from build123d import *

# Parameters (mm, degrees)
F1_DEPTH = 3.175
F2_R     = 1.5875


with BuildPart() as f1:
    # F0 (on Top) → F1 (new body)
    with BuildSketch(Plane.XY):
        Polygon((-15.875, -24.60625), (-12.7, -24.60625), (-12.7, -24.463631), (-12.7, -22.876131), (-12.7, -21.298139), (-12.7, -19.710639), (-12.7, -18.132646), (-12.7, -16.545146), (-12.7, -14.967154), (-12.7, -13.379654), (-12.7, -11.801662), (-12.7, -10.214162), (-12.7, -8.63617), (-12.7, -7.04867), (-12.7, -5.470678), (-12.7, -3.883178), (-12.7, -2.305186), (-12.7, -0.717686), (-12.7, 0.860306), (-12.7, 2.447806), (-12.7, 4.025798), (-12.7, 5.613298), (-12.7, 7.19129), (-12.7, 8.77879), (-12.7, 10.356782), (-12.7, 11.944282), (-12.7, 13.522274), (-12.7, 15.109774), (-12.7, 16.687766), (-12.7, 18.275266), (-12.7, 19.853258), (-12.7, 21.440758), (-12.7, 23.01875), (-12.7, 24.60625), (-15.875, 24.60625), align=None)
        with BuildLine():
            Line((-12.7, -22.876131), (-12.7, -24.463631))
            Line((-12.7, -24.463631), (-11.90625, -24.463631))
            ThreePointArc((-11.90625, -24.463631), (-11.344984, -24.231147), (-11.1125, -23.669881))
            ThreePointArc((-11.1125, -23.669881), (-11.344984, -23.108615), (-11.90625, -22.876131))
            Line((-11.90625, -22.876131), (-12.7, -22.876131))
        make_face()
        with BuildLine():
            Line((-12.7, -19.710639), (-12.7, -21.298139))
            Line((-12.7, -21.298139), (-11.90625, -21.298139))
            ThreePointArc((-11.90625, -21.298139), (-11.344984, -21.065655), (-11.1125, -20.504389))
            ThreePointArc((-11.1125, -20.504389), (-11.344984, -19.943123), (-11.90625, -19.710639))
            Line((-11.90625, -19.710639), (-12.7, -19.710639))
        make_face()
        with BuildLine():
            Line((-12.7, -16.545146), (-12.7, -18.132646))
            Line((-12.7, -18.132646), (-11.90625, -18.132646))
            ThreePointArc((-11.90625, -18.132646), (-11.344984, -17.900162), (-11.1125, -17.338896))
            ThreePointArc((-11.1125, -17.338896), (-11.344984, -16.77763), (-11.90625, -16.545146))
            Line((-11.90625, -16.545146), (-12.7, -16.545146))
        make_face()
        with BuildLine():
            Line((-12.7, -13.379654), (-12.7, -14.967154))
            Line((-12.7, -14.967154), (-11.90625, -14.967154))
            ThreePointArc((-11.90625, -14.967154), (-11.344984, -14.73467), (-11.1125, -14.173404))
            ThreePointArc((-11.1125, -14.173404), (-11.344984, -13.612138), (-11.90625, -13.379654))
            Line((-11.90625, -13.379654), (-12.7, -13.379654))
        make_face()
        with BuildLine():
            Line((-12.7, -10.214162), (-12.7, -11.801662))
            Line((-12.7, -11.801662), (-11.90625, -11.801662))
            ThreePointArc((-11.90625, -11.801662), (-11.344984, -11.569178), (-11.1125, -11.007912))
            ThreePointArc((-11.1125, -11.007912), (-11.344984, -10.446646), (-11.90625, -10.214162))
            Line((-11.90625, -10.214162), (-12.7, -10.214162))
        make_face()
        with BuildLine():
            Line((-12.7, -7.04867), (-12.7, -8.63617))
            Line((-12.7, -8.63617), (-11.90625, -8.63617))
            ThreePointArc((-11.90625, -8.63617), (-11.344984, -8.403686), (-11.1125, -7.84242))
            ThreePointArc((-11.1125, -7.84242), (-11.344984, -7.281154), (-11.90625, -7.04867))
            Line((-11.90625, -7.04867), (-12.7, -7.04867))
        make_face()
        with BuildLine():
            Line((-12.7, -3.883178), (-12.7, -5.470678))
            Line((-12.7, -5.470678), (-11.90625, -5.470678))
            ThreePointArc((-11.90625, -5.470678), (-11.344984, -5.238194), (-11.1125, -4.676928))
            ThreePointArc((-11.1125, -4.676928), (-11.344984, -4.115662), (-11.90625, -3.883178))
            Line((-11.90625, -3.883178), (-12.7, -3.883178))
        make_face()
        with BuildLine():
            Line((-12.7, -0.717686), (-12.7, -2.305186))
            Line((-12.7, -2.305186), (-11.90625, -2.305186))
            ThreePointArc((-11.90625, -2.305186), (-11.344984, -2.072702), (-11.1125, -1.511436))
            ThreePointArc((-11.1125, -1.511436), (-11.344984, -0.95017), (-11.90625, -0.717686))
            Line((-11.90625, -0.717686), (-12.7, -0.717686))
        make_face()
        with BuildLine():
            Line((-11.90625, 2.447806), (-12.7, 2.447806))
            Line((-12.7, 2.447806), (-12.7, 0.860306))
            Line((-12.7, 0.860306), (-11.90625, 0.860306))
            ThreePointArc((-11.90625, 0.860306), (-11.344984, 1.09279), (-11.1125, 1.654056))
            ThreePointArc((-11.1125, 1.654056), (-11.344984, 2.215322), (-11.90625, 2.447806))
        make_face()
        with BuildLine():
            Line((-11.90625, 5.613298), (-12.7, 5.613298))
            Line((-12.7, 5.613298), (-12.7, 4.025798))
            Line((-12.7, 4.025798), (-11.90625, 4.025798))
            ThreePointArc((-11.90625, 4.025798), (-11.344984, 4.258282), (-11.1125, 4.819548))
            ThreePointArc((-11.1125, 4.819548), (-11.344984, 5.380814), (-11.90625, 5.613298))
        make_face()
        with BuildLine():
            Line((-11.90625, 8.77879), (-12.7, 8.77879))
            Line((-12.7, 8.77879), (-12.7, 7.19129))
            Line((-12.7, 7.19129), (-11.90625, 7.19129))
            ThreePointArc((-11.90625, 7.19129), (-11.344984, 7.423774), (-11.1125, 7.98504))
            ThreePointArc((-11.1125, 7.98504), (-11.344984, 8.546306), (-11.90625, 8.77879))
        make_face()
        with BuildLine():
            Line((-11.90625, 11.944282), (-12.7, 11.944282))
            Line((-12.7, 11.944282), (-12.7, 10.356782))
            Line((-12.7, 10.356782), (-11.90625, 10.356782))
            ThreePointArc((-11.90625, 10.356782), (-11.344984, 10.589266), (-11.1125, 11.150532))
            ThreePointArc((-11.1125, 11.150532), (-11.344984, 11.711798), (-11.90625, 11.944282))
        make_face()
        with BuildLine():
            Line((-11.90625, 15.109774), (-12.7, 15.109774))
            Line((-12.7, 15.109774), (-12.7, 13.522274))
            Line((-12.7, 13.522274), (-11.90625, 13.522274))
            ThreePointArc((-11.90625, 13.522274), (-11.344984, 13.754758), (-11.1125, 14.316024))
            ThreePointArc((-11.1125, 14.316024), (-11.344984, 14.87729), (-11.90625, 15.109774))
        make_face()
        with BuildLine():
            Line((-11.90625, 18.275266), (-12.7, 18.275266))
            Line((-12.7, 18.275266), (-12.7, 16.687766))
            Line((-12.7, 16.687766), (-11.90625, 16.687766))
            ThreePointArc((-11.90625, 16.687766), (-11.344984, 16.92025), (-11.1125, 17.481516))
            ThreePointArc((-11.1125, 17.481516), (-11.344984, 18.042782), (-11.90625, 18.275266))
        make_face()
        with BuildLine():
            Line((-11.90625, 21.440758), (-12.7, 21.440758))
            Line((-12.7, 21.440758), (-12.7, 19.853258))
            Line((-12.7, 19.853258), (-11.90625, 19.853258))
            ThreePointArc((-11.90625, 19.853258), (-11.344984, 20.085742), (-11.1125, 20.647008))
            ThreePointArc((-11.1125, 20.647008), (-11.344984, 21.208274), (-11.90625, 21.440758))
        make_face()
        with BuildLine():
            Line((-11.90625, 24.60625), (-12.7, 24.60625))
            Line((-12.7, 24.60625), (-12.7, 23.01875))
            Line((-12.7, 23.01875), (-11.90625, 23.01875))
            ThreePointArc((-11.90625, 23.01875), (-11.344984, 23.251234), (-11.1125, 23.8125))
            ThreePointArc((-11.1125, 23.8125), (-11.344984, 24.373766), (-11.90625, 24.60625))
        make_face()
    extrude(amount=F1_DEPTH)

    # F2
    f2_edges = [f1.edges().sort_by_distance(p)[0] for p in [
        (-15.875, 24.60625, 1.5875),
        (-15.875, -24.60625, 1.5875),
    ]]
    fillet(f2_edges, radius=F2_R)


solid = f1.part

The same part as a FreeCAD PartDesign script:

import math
import FreeCAD as App
import Part
import Sketcher
from FreeCAD import Vector
Q = App.Units.Quantity


def edges_at(feature, points):
    """Names of the edges that pass closest to the given points."""
    edges = feature.Shape.Edges
    near = lambda p: min(range(len(edges)), key=lambda i: edges[i].distToShape(Part.Vertex(*p))[0])
    return sorted({f"Edge{near(p) + 1}" for p in points})

doc = App.newDocument("Part")
body = doc.addObject("PartDesign::Body", "Body")

sketch1 = body.newObject("Sketcher::SketchObject", "Sketch")
sketch1.AttachmentSupport = (doc.getObject("XY_Plane"), [""])
sketch1.MapMode = "FlatFace"
sketch1.addGeometry(Part.LineSegment(Vector(-15.88, -24.61, 0), Vector(-12.7, -24.61, 0)), False)
sketch1.addGeometry(Part.LineSegment(Vector(-12.7, -24.61, 0), Vector(-12.7, -24.46, 0)), False)
sketch1.addGeometry(Part.LineSegment(Vector(-12.7, -24.46, 0), Vector(-11.91, -24.46, 0)), False)
sketch1.addGeometry(Part.ArcOfCircle(Part.Circle(Vector(-11.91, -23.67, 0), Vector(0, 0, 1), 0.79), math.radians(-90), math.radians(0)), False)
sketch1.addGeometry(Part.ArcOfCircle(Part.Circle(Vector(-11.91, -23.67, 0), Vector(0, 0, 1), 0.79), math.radians(0), math.radians(90)), False)
sketch1.addGeometry(Part.LineSegment(Vector(-11.91, -22.88, 0), Vector(-12.7, -22.88, 0)), False)
sketch1.addGeometry(Part.LineSegment(Vector(-12.7, -22.88, 0), Vector(-12.7, -21.3, 0)), False)
sketch1.addGeometry(Part.LineSegment(Vector(-12.7, -21.3, 0), Vector(-11.91, -21.3, 0)), False)
sketch1.addGeometry(Part.ArcOfCircle(Part.Circle(Vector(-11.91, -20.5, 0), Vector(0, 0, 1), 0.79), math.radians(-90), math.radians(0)), False)
sketch1.addGeometry(Part.ArcOfCircle(Part.Circle(Vector(-11.91, -20.5, 0), Vector(0, 0, 1), 0.79), math.radians(0), math.radians(90)), False)
sketch1.addGeometry(Part.LineSegment(Vector(-11.91, -19.71, 0), Vector(-12.7, -19.71, 0)), False)
sketch1.addGeometry(Part.LineSegment(Vector(-12.7, -19.71, 0), Vector(-12.7, -18.13, 0)), False)
sketch1.addGeometry(Part.LineSegment(Vector(-12.7, -18.13, 0), Vector(-11.91, -18.13, 0)), False)
sketch1.addGeometry(Part.ArcOfCircle(Part.Circle(Vector(-11.91, -17.34, 0), Vector(0, 0, 1), 0.79), math.radians(-90), math.radians(0)), False)
sketch1.addGeometry(Part.ArcOfCircle(Part.Circle(Vector(-11.91, -17.34, 0), Vector(0, 0, 1), 0.79), math.radians(0), math.radians(90)), False)
sketch1.addGeometry(Part.LineSegment(Vector(-11.91, -16.55, 0), Vector(-12.7, -16.55, 0)), False)
sketch1.addGeometry(Part.LineSegment(Vector(-12.7, -16.55, 0), Vector(-12.7, -14.97, 0)), False)
sketch1.addGeometry(Part.LineSegment(Vector(-12.7, -14.97, 0), Vector(-11.91, -14.97, 0)), False)
sketch1.addGeometry(Part.ArcOfCircle(Part.Circle(Vector(-11.91, -14.17, 0), Vector(0, 0, 1), 0.79), math.radians(-90), math.radians(0)), False)
sketch1.addGeometry(Part.ArcOfCircle(Part.Circle(Vector(-11.91, -14.17, 0), Vector(0, 0, 1), 0.79), math.radians(0), math.radians(90)), False)
sketch1.addGeometry(Part.LineSegment(Vector(-11.91, -13.38, 0), Vector(-12.7, -13.38, 0)), False)
sketch1.addGeometry(Part.LineSegment(Vector(-12.7, -13.38, 0), Vector(-12.7, -11.8, 0)), False)
sketch1.addGeometry(Part.LineSegment(Vector(-12.7, -11.8, 0), Vector(-11.91, -11.8, 0)), False)
sketch1.addGeometry(Part.ArcOfCircle(Part.Circle(Vector(-11.91, -11.01, 0), Vector(0, 0, 1), 0.79), math.radians(-90), math.radians(0)), False)
sketch1.addGeometry(Part.ArcOfCircle(Part.Circle(Vector(-11.91, -11.01, 0), Vector(0, 0, 1), 0.79), math.radians(0), math.radians(90)), False)
sketch1.addGeometry(Part.LineSegment(Vector(-11.91, -10.21, 0), Vector(-12.7, -10.21, 0)), False)
sketch1.addGeometry(Part.LineSegment(Vector(-12.7, -10.21, 0), Vector(-12.7, -8.64, 0)), False)
sketch1.addGeometry(Part.LineSegment(Vector(-12.7, -8.64, 0), Vector(-11.91, -8.64, 0)), False)
sketch1.addGeometry(Part.ArcOfCircle(Part.Circle(Vector(-11.91, -7.84, 0), Vector(0, 0, 1), 0.79), math.radians(-90), math.radians(0)), False)
sketch1.addGeometry(Part.ArcOfCircle(Part.Circle(Vector(-11.91, -7.84, 0), Vector(0, 0, 1), 0.79), math.radians(0), math.radians(90)), False)
sketch1.addGeometry(Part.LineSegment(Vector(-11.91, -7.05, 0), Vector(-12.7, -7.05, 0)), False)
sketch1.addGeometry(Part.LineSegment(Vector(-12.7, -7.05, 0), Vector(-12.7, -5.47, 0)), False)
sketch1.addGeometry(Part.LineSegment(Vector(-12.7, -5.47, 0), Vector(-11.91, -5.47, 0)), False)
sketch1.addGeometry(Part.ArcOfCircle(Part.Circle(Vector(-11.91, -4.68, 0), Vector(0, 0, 1), 0.79), math.radians(-90), math.radians(0)), False)
sketch1.addGeometry(Part.ArcOfCircle(Part.Circle(Vector(-11.91, -4.68, 0), Vector(0, 0, 1), 0.79), math.radians(0), math.radians(90)), False)
sketch1.addGeometry(Part.LineSegment(Vector(-11.91, -3.88, 0), Vector(-12.7, -3.88, 0)), False)
sketch1.addGeometry(Part.LineSegment(Vector(-12.7, -3.88, 0), Vector(-12.7, -2.31, 0)), False)
sketch1.addGeometry(Part.LineSegment(Vector(-12.7, -2.31, 0), Vector(-11.91, -2.31, 0)), False)
sketch1.addGeometry(Part.ArcOfCircle(Part.Circle(Vector(-11.91, -1.51, 0), Vector(0, 0, 1), 0.79), math.radians(-90), math.radians(0)), False)
sketch1.addGeometry(Part.ArcOfCircle(Part.Circle(Vector(-11.91, -1.51, 0), Vector(0, 0, 1), 0.79), math.radians(0), math.radians(90)), False)
sketch1.addGeometry(Part.LineSegment(Vector(-11.91, -0.72, 0), Vector(-12.7, -0.72, 0)), False)
sketch1.addGeometry(Part.LineSegment(Vector(-12.7, -0.72, 0), Vector(-12.7, 0.86, 0)), False)
sketch1.addGeometry(Part.LineSegment(Vector(-12.7, 0.86, 0), Vector(-11.91, 0.86, 0)), False)
sketch1.addGeometry(Part.ArcOfCircle(Part.Circle(Vector(-11.91, 1.65, 0), Vector(0, 0, 1), 0.79), math.radians(-90), math.radians(0)), False)
sketch1.addGeometry(Part.ArcOfCircle(Part.Circle(Vector(-11.91, 1.65, 0), Vector(0, 0, 1), 0.79), math.radians(0), math.radians(90)), False)
sketch1.addGeometry(Part.LineSegment(Vector(-11.91, 2.45, 0), Vector(-12.7, 2.45, 0)), False)
sketch1.addGeometry(Part.LineSegment(Vector(-12.7, 2.45, 0), Vector(-12.7, 4.03, 0)), False)
sketch1.addGeometry(Part.LineSegment(Vector(-12.7, 4.03, 0), Vector(-11.91, 4.03, 0)), False)
sketch1.addGeometry(Part.ArcOfCircle(Part.Circle(Vector(-11.91, 4.82, 0), Vector(0, 0, 1), 0.79), math.radians(-90), math.radians(0)), False)
sketch1.addGeometry(Part.ArcOfCircle(Part.Circle(Vector(-11.91, 4.82, 0), Vector(0, 0, 1), 0.79), math.radians(0), math.radians(90)), False)
sketch1.addGeometry(Part.LineSegment(Vector(-11.91, 5.61, 0), Vector(-12.7, 5.61, 0)), False)
sketch1.addGeometry(Part.LineSegment(Vector(-12.7, 5.61, 0), Vector(-12.7, 7.19, 0)), False)
sketch1.addGeometry(Part.LineSegment(Vector(-12.7, 7.19, 0), Vector(-11.91, 7.19, 0)), False)
sketch1.addGeometry(Part.ArcOfCircle(Part.Circle(Vector(-11.91, 7.99, 0), Vector(0, 0, 1), 0.79), math.radians(-90), math.radians(0)), False)
sketch1.addGeometry(Part.ArcOfCircle(Part.Circle(Vector(-11.91, 7.99, 0), Vector(0, 0, 1), 0.79), math.radians(0), math.radians(90)), False)
sketch1.addGeometry(Part.LineSegment(Vector(-11.91, 8.78, 0), Vector(-12.7, 8.78, 0)), False)
sketch1.addGeometry(Part.LineSegment(Vector(-12.7, 8.78, 0), Vector(-12.7, 10.36, 0)), False)
sketch1.addGeometry(Part.LineSegment(Vector(-12.7, 10.36, 0), Vector(-11.91, 10.36, 0)), False)
sketch1.addGeometry(Part.ArcOfCircle(Part.Circle(Vector(-11.91, 11.15, 0), Vector(0, 0, 1), 0.79), math.radians(-90), math.radians(0)), False)
sketch1.addGeometry(Part.ArcOfCircle(Part.Circle(Vector(-11.91, 11.15, 0), Vector(0, 0, 1), 0.79), math.radians(0), math.radians(90)), False)
sketch1.addGeometry(Part.LineSegment(Vector(-11.91, 11.94, 0), Vector(-12.7, 11.94, 0)), False)
sketch1.addGeometry(Part.LineSegment(Vector(-12.7, 11.94, 0), Vector(-12.7, 13.52, 0)), False)
sketch1.addGeometry(Part.LineSegment(Vector(-12.7, 13.52, 0), Vector(-11.91, 13.52, 0)), False)
sketch1.addGeometry(Part.ArcOfCircle(Part.Circle(Vector(-11.91, 14.32, 0), Vector(0, 0, 1), 0.79), math.radians(-90), math.radians(0)), False)
sketch1.addGeometry(Part.ArcOfCircle(Part.Circle(Vector(-11.91, 14.32, 0), Vector(0, 0, 1), 0.79), math.radians(0), math.radians(90)), False)
sketch1.addGeometry(Part.LineSegment(Vector(-11.91, 15.11, 0), Vector(-12.7, 15.11, 0)), False)
sketch1.addGeometry(Part.LineSegment(Vector(-12.7, 15.11, 0), Vector(-12.7, 16.69, 0)), False)
sketch1.addGeometry(Part.LineSegment(Vector(-12.7, 16.69, 0), Vector(-11.91, 16.69, 0)), False)
sketch1.addGeometry(Part.ArcOfCircle(Part.Circle(Vector(-11.91, 17.48, 0), Vector(0, 0, 1), 0.79), math.radians(-90), math.radians(0)), False)
sketch1.addGeometry(Part.ArcOfCircle(Part.Circle(Vector(-11.91, 17.48, 0), Vector(0, 0, 1), 0.79), math.radians(0), math.radians(90)), False)
sketch1.addGeometry(Part.LineSegment(Vector(-11.91, 18.28, 0), Vector(-12.7, 18.28, 0)), False)
sketch1.addGeometry(Part.LineSegment(Vector(-12.7, 18.28, 0), Vector(-12.7, 19.85, 0)), False)
sketch1.addGeometry(Part.LineSegment(Vector(-12.7, 19.85, 0), Vector(-11.91, 19.85, 0)), False)
sketch1.addGeometry(Part.ArcOfCircle(Part.Circle(Vector(-11.91, 20.65, 0), Vector(0, 0, 1), 0.79), math.radians(-90), math.radians(0)), False)
sketch1.addGeometry(Part.ArcOfCircle(Part.Circle(Vector(-11.91, 20.65, 0), Vector(0, 0, 1), 0.79), math.radians(0), math.radians(90)), False)
sketch1.addGeometry(Part.LineSegment(Vector(-11.91, 21.44, 0), Vector(-12.7, 21.44, 0)), False)
sketch1.addGeometry(Part.LineSegment(Vector(-12.7, 21.44, 0), Vector(-12.7, 23.02, 0)), False)
sketch1.addGeometry(Part.LineSegment(Vector(-12.7, 23.02, 0), Vector(-11.91, 23.02, 0)), False)
sketch1.addGeometry(Part.ArcOfCircle(Part.Circle(Vector(-11.91, 23.81, 0), Vector(0, 0, 1), 0.79), math.radians(-90), math.radians(0)), False)
sketch1.addGeometry(Part.ArcOfCircle(Part.Circle(Vector(-11.91, 23.81, 0), Vector(0, 0, 1), 0.79), math.radians(0), math.radians(90)), False)
sketch1.addGeometry(Part.LineSegment(Vector(-11.91, 24.61, 0), Vector(-15.88, 24.61, 0)), False)
sketch1.addGeometry(Part.LineSegment(Vector(-15.88, 24.61, 0), Vector(-15.88, -24.61, 0)), False)
sketch1.addConstraint(Sketcher.Constraint("Coincident", 0, 2, 1, 1))
sketch1.addConstraint(Sketcher.Constraint("Coincident", 1, 2, 2, 1))
sketch1.addConstraint(Sketcher.Constraint("Tangent", 2, 2, 3, 1))
sketch1.addConstraint(Sketcher.Constraint("Tangent", 3, 2, 4, 1))
sketch1.addConstraint(Sketcher.Constraint("Tangent", 4, 2, 5, 1))
sketch1.addConstraint(Sketcher.Constraint("Coincident", 5, 2, 6, 1))
sketch1.addConstraint(Sketcher.Constraint("Coincident", 6, 2, 7, 1))
sketch1.addConstraint(Sketcher.Constraint("Tangent", 7, 2, 8, 1))
sketch1.addConstraint(Sketcher.Constraint("Tangent", 8, 2, 9, 1))
sketch1.addConstraint(Sketcher.Constraint("Tangent", 9, 2, 10, 1))
sketch1.addConstraint(Sketcher.Constraint("Coincident", 10, 2, 11, 1))
sketch1.addConstraint(Sketcher.Constraint("Coincident", 11, 2, 12, 1))
sketch1.addConstraint(Sketcher.Constraint("Tangent", 12, 2, 13, 1))
sketch1.addConstraint(Sketcher.Constraint("Tangent", 13, 2, 14, 1))
sketch1.addConstraint(Sketcher.Constraint("Tangent", 14, 2, 15, 1))
sketch1.addConstraint(Sketcher.Constraint("Coincident", 15, 2, 16, 1))
sketch1.addConstraint(Sketcher.Constraint("Coincident", 16, 2, 17, 1))
sketch1.addConstraint(Sketcher.Constraint("Tangent", 17, 2, 18, 1))
sketch1.addConstraint(Sketcher.Constraint("Tangent", 18, 2, 19, 1))
sketch1.addConstraint(Sketcher.Constraint("Tangent", 19, 2, 20, 1))
sketch1.addConstraint(Sketcher.Constraint("Coincident", 20, 2, 21, 1))
sketch1.addConstraint(Sketcher.Constraint("Coincident", 21, 2, 22, 1))
sketch1.addConstraint(Sketcher.Constraint("Tangent", 22, 2, 23, 1))
sketch1.addConstraint(Sketcher.Constraint("Tangent", 23, 2, 24, 1))
sketch1.addConstraint(Sketcher.Constraint("Tangent", 24, 2, 25, 1))
sketch1.addConstraint(Sketcher.Constraint("Coincident", 25, 2, 26, 1))
sketch1.addConstraint(Sketcher.Constraint("Coincident", 26, 2, 27, 1))
sketch1.addConstraint(Sketcher.Constraint("Tangent", 27, 2, 28, 1))
sketch1.addConstraint(Sketcher.Constraint("Tangent", 28, 2, 29, 1))
sketch1.addConstraint(Sketcher.Constraint("Tangent", 29, 2, 30, 1))
sketch1.addConstraint(Sketcher.Constraint("Coincident", 30, 2, 31, 1))
sketch1.addConstraint(Sketcher.Constraint("Coincident", 31, 2, 32, 1))
sketch1.addConstraint(Sketcher.Constraint("Tangent", 32, 2, 33, 1))
sketch1.addConstraint(Sketcher.Constraint("Tangent", 33, 2, 34, 1))
sketch1.addConstraint(Sketcher.Constraint("Tangent", 34, 2, 35, 1))
sketch1.addConstraint(Sketcher.Constraint("Coincident", 35, 2, 36, 1))
sketch1.addConstraint(Sketcher.Constraint("Coincident", 36, 2, 37, 1))
sketch1.addConstraint(Sketcher.Constraint("Tangent", 37, 2, 38, 1))
sketch1.addConstraint(Sketcher.Constraint("Tangent", 38, 2, 39, 1))
sketch1.addConstraint(Sketcher.Constraint("Tangent", 39, 2, 40, 1))
sketch1.addConstraint(Sketcher.Constraint("Coincident", 40, 2, 41, 1))
sketch1.addConstraint(Sketcher.Constraint("Coincident", 41, 2, 42, 1))
sketch1.addConstraint(Sketcher.Constraint("Tangent", 42, 2, 43, 1))
sketch1.addConstraint(Sketcher.Constraint("Tangent", 43, 2, 44, 1))
sketch1.addConstraint(Sketcher.Constraint("Tangent", 44, 2, 45, 1))
sketch1.addConstraint(Sketcher.Constraint("Coincident", 45, 2, 46, 1))
sketch1.addConstraint(Sketcher.Constraint("Coincident", 46, 2, 47, 1))
sketch1.addConstraint(Sketcher.Constraint("Tangent", 47, 2, 48, 1))
sketch1.addConstraint(Sketcher.Constraint("Tangent", 48, 2, 49, 1))
sketch1.addConstraint(Sketcher.Constraint("Tangent", 49, 2, 50, 1))
sketch1.addConstraint(Sketcher.Constraint("Coincident", 50, 2, 51, 1))
sketch1.addConstraint(Sketcher.Constraint("Coincident", 51, 2, 52, 1))
sketch1.addConstraint(Sketcher.Constraint("Tangent", 52, 2, 53, 1))
sketch1.addConstraint(Sketcher.Constraint("Tangent", 53, 2, 54, 1))
sketch1.addConstraint(Sketcher.Constraint("Tangent", 54, 2, 55, 1))
sketch1.addConstraint(Sketcher.Constraint("Coincident", 55, 2, 56, 1))
sketch1.addConstraint(Sketcher.Constraint("Coincident", 56, 2, 57, 1))
sketch1.addConstraint(Sketcher.Constraint("Tangent", 57, 2, 58, 1))
sketch1.addConstraint(Sketcher.Constraint("Tangent", 58, 2, 59, 1))
sketch1.addConstraint(Sketcher.Constraint("Tangent", 59, 2, 60, 1))
sketch1.addConstraint(Sketcher.Constraint("Coincident", 60, 2, 61, 1))
sketch1.addConstraint(Sketcher.Constraint("Coincident", 61, 2, 62, 1))
sketch1.addConstraint(Sketcher.Constraint("Tangent", 62, 2, 63, 1))
sketch1.addConstraint(Sketcher.Constraint("Tangent", 63, 2, 64, 1))
sketch1.addConstraint(Sketcher.Constraint("Tangent", 64, 2, 65, 1))
sketch1.addConstraint(Sketcher.Constraint("Coincident", 65, 2, 66, 1))
sketch1.addConstraint(Sketcher.Constraint("Coincident", 66, 2, 67, 1))
sketch1.addConstraint(Sketcher.Constraint("Tangent", 67, 2, 68, 1))
sketch1.addConstraint(Sketcher.Constraint("Tangent", 68, 2, 69, 1))
sketch1.addConstraint(Sketcher.Constraint("Tangent", 69, 2, 70, 1))
sketch1.addConstraint(Sketcher.Constraint("Coincident", 70, 2, 71, 1))
sketch1.addConstraint(Sketcher.Constraint("Coincident", 71, 2, 72, 1))
sketch1.addConstraint(Sketcher.Constraint("Tangent", 72, 2, 73, 1))
sketch1.addConstraint(Sketcher.Constraint("Tangent", 73, 2, 74, 1))
sketch1.addConstraint(Sketcher.Constraint("Tangent", 74, 2, 75, 1))
sketch1.addConstraint(Sketcher.Constraint("Coincident", 75, 2, 76, 1))
sketch1.addConstraint(Sketcher.Constraint("Coincident", 76, 2, 77, 1))
sketch1.addConstraint(Sketcher.Constraint("Tangent", 77, 2, 78, 1))
sketch1.addConstraint(Sketcher.Constraint("Tangent", 78, 2, 79, 1))
sketch1.addConstraint(Sketcher.Constraint("Tangent", 79, 2, 80, 1))
sketch1.addConstraint(Sketcher.Constraint("Coincident", 80, 2, 81, 1))
sketch1.addConstraint(Sketcher.Constraint("Coincident", 81, 2, 0, 1))
sketch1.addConstraint(Sketcher.Constraint("Horizontal", 0))
sketch1.addConstraint(Sketcher.Constraint("Vertical", 1))
sketch1.addConstraint(Sketcher.Constraint("Horizontal", 2))
sketch1.addConstraint(Sketcher.Constraint("Horizontal", 5))
sketch1.addConstraint(Sketcher.Constraint("Vertical", 6))
sketch1.addConstraint(Sketcher.Constraint("Horizontal", 7))
sketch1.addConstraint(Sketcher.Constraint("Horizontal", 10))
sketch1.addConstraint(Sketcher.Constraint("Vertical", 11))
sketch1.addConstraint(Sketcher.Constraint("Horizontal", 12))
sketch1.addConstraint(Sketcher.Constraint("Horizontal", 15))
sketch1.addConstraint(Sketcher.Constraint("Vertical", 16))
sketch1.addConstraint(Sketcher.Constraint("Horizontal", 17))
sketch1.addConstraint(Sketcher.Constraint("Horizontal", 20))
sketch1.addConstraint(Sketcher.Constraint("Vertical", 21))
sketch1.addConstraint(Sketcher.Constraint("Horizontal", 22))
sketch1.addConstraint(Sketcher.Constraint("Horizontal", 25))
sketch1.addConstraint(Sketcher.Constraint("Vertical", 26))
sketch1.addConstraint(Sketcher.Constraint("Horizontal", 27))
sketch1.addConstraint(Sketcher.Constraint("Horizontal", 30))
sketch1.addConstraint(Sketcher.Constraint("Vertical", 31))
sketch1.addConstraint(Sketcher.Constraint("Horizontal", 32))
sketch1.addConstraint(Sketcher.Constraint("Horizontal", 35))
sketch1.addConstraint(Sketcher.Constraint("Vertical", 36))
sketch1.addConstraint(Sketcher.Constraint("Horizontal", 37))
sketch1.addConstraint(Sketcher.Constraint("Horizontal", 40))
sketch1.addConstraint(Sketcher.Constraint("Vertical", 41))
sketch1.addConstraint(Sketcher.Constraint("Horizontal", 42))
sketch1.addConstraint(Sketcher.Constraint("Horizontal", 45))
sketch1.addConstraint(Sketcher.Constraint("Vertical", 46))
sketch1.addConstraint(Sketcher.Constraint("Horizontal", 47))
sketch1.addConstraint(Sketcher.Constraint("Horizontal", 50))
sketch1.addConstraint(Sketcher.Constraint("Vertical", 51))
sketch1.addConstraint(Sketcher.Constraint("Horizontal", 52))
sketch1.addConstraint(Sketcher.Constraint("Horizontal", 55))
sketch1.addConstraint(Sketcher.Constraint("Vertical", 56))
sketch1.addConstraint(Sketcher.Constraint("Horizontal", 57))
sketch1.addConstraint(Sketcher.Constraint("Horizontal", 60))
sketch1.addConstraint(Sketcher.Constraint("Vertical", 61))
sketch1.addConstraint(Sketcher.Constraint("Horizontal", 62))
sketch1.addConstraint(Sketcher.Constraint("Horizontal", 65))
sketch1.addConstraint(Sketcher.Constraint("Vertical", 66))
sketch1.addConstraint(Sketcher.Constraint("Horizontal", 67))
sketch1.addConstraint(Sketcher.Constraint("Horizontal", 70))
sketch1.addConstraint(Sketcher.Constraint("Vertical", 71))
sketch1.addConstraint(Sketcher.Constraint("Horizontal", 72))
sketch1.addConstraint(Sketcher.Constraint("Horizontal", 75))
sketch1.addConstraint(Sketcher.Constraint("Vertical", 76))
sketch1.addConstraint(Sketcher.Constraint("Horizontal", 77))
sketch1.addConstraint(Sketcher.Constraint("Horizontal", 80))
sketch1.addConstraint(Sketcher.Constraint("Vertical", 81))
sketch1.addConstraint(Sketcher.Constraint("Equal", 3, 4))
sketch1.addConstraint(Sketcher.Constraint("Equal", 4, 8))
sketch1.addConstraint(Sketcher.Constraint("Equal", 8, 9))
sketch1.addConstraint(Sketcher.Constraint("Equal", 9, 13))
sketch1.addConstraint(Sketcher.Constraint("Equal", 13, 14))
sketch1.addConstraint(Sketcher.Constraint("Equal", 14, 18))
sketch1.addConstraint(Sketcher.Constraint("Equal", 18, 19))
sketch1.addConstraint(Sketcher.Constraint("Equal", 19, 23))
sketch1.addConstraint(Sketcher.Constraint("Equal", 23, 24))
sketch1.addConstraint(Sketcher.Constraint("Equal", 24, 28))
sketch1.addConstraint(Sketcher.Constraint("Equal", 28, 29))
sketch1.addConstraint(Sketcher.Constraint("Equal", 29, 33))
sketch1.addConstraint(Sketcher.Constraint("Equal", 33, 34))
sketch1.addConstraint(Sketcher.Constraint("Equal", 34, 38))
sketch1.addConstraint(Sketcher.Constraint("Equal", 38, 39))
sketch1.addConstraint(Sketcher.Constraint("Equal", 39, 43))
sketch1.addConstraint(Sketcher.Constraint("Equal", 43, 44))
sketch1.addConstraint(Sketcher.Constraint("Equal", 44, 48))
sketch1.addConstraint(Sketcher.Constraint("Equal", 48, 49))
sketch1.addConstraint(Sketcher.Constraint("Equal", 49, 53))
sketch1.addConstraint(Sketcher.Constraint("Equal", 53, 54))
sketch1.addConstraint(Sketcher.Constraint("Equal", 54, 58))
sketch1.addConstraint(Sketcher.Constraint("Equal", 58, 59))
sketch1.addConstraint(Sketcher.Constraint("Equal", 59, 63))
sketch1.addConstraint(Sketcher.Constraint("Equal", 63, 64))
sketch1.addConstraint(Sketcher.Constraint("Equal", 64, 68))
sketch1.addConstraint(Sketcher.Constraint("Equal", 68, 69))
sketch1.addConstraint(Sketcher.Constraint("Equal", 69, 73))
sketch1.addConstraint(Sketcher.Constraint("Equal", 73, 74))
sketch1.addConstraint(Sketcher.Constraint("Equal", 74, 78))
sketch1.addConstraint(Sketcher.Constraint("Equal", 78, 79))
sketch1.addConstraint(Sketcher.Constraint("Horizontal", 4, 3, 3, 2))
sketch1.addConstraint(Sketcher.Constraint("Horizontal", 9, 3, 8, 2))
sketch1.addConstraint(Sketcher.Constraint("Horizontal", 14, 3, 13, 2))
sketch1.addConstraint(Sketcher.Constraint("Horizontal", 19, 3, 18, 2))
sketch1.addConstraint(Sketcher.Constraint("Horizontal", 24, 3, 23, 2))
sketch1.addConstraint(Sketcher.Constraint("Horizontal", 29, 3, 28, 2))
sketch1.addConstraint(Sketcher.Constraint("Horizontal", 34, 3, 33, 2))
sketch1.addConstraint(Sketcher.Constraint("Horizontal", 39, 3, 38, 2))
sketch1.addConstraint(Sketcher.Constraint("Horizontal", 44, 3, 43, 2))
sketch1.addConstraint(Sketcher.Constraint("Horizontal", 49, 3, 48, 2))
sketch1.addConstraint(Sketcher.Constraint("Horizontal", 54, 3, 53, 2))
sketch1.addConstraint(Sketcher.Constraint("Horizontal", 59, 3, 58, 2))
sketch1.addConstraint(Sketcher.Constraint("Horizontal", 64, 3, 63, 2))
sketch1.addConstraint(Sketcher.Constraint("Horizontal", 69, 3, 68, 2))
sketch1.addConstraint(Sketcher.Constraint("Horizontal", 74, 3, 73, 2))
sketch1.addConstraint(Sketcher.Constraint("Horizontal", 79, 3, 78, 2))
sketch1.addConstraint(Sketcher.Constraint("Vertical", 4, 3, 8, 3))
sketch1.addConstraint(Sketcher.Constraint("Vertical", 9, 3, 13, 3))
sketch1.addConstraint(Sketcher.Constraint("Vertical", 14, 3, 18, 3))
sketch1.addConstraint(Sketcher.Constraint("Vertical", 19, 3, 23, 3))
sketch1.addConstraint(Sketcher.Constraint("Vertical", 24, 3, 28, 3))
sketch1.addConstraint(Sketcher.Constraint("Vertical", 29, 3, 33, 3))
sketch1.addConstraint(Sketcher.Constraint("Vertical", 34, 3, 38, 3))
sketch1.addConstraint(Sketcher.Constraint("Vertical", 39, 3, 43, 3))
sketch1.addConstraint(Sketcher.Constraint("Vertical", 44, 3, 48, 3))
sketch1.addConstraint(Sketcher.Constraint("Vertical", 49, 3, 53, 3))
sketch1.addConstraint(Sketcher.Constraint("Vertical", 54, 3, 58, 3))
sketch1.addConstraint(Sketcher.Constraint("Vertical", 59, 3, 63, 3))
sketch1.addConstraint(Sketcher.Constraint("Vertical", 64, 3, 68, 3))
sketch1.addConstraint(Sketcher.Constraint("Vertical", 69, 3, 73, 3))
sketch1.addConstraint(Sketcher.Constraint("Vertical", 74, 3, 78, 3))
sketch1.addConstraint(Sketcher.Constraint("Vertical", 1, 2, 5, 2))
sketch1.addConstraint(Sketcher.Constraint("Vertical", 6, 2, 10, 2))
sketch1.addConstraint(Sketcher.Constraint("Vertical", 11, 2, 15, 2))
sketch1.addConstraint(Sketcher.Constraint("Vertical", 16, 2, 20, 2))
sketch1.addConstraint(Sketcher.Constraint("Vertical", 21, 2, 25, 2))
sketch1.addConstraint(Sketcher.Constraint("Vertical", 26, 2, 30, 2))
sketch1.addConstraint(Sketcher.Constraint("Vertical", 31, 2, 35, 2))
sketch1.addConstraint(Sketcher.Constraint("Vertical", 36, 2, 40, 2))
sketch1.addConstraint(Sketcher.Constraint("Vertical", 41, 2, 45, 2))
sketch1.addConstraint(Sketcher.Constraint("Vertical", 46, 2, 50, 2))
sketch1.addConstraint(Sketcher.Constraint("Vertical", 51, 2, 55, 2))
sketch1.addConstraint(Sketcher.Constraint("Vertical", 56, 2, 60, 2))
sketch1.addConstraint(Sketcher.Constraint("Vertical", 61, 2, 65, 2))
sketch1.addConstraint(Sketcher.Constraint("Vertical", 66, 2, 70, 2))
sketch1.addConstraint(Sketcher.Constraint("Vertical", 71, 2, 75, 2))
sketch1.addConstraint(Sketcher.Constraint("Equal", 6, 11))
sketch1.addConstraint(Sketcher.Constraint("Equal", 11, 16))
sketch1.addConstraint(Sketcher.Constraint("Equal", 16, 21))
sketch1.addConstraint(Sketcher.Constraint("Equal", 21, 26))
sketch1.addConstraint(Sketcher.Constraint("Equal", 26, 31))
sketch1.addConstraint(Sketcher.Constraint("Equal", 31, 36))
sketch1.addConstraint(Sketcher.Constraint("Equal", 36, 41))
sketch1.addConstraint(Sketcher.Constraint("Equal", 41, 46))
sketch1.addConstraint(Sketcher.Constraint("Equal", 46, 51))
sketch1.addConstraint(Sketcher.Constraint("Equal", 51, 56))
sketch1.addConstraint(Sketcher.Constraint("Equal", 56, 61))
sketch1.addConstraint(Sketcher.Constraint("Equal", 61, 66))
sketch1.addConstraint(Sketcher.Constraint("Equal", 66, 71))
sketch1.addConstraint(Sketcher.Constraint("Equal", 71, 76))
sketch1.addConstraint(Sketcher.Constraint("Radius", 3, Q("0.03125 in")))
sketch1.addConstraint(Sketcher.Constraint("DistanceX", 0, 2, -1, 1, Q("0.5 in")))
sketch1.addConstraint(Sketcher.Constraint("DistanceX", 0, 1, 0, 2, Q("0.125 in")))
sketch1.addConstraint(Sketcher.Constraint("DistanceX", 2, 1, 2, 2, Q("0.03125 in")))
sketch1.addConstraint(Sketcher.Constraint("DistanceY", 81, 2, 81, 1, Q("1.9375 in")))
sketch1.addConstraint(Sketcher.Constraint("DistanceY", -1, 1, 78, 3, Q("0.9375 in")))
sketch1.addConstraint(Sketcher.Constraint("DistanceY", 1, 1, 1, 2, 0.142619))
pad1 = body.newObject("PartDesign::Pad", "Pad")
pad1.Profile = sketch1
pad1.Length = Q("0.125 in")
doc.recompute()

fillet = body.newObject("PartDesign::Fillet", "Fillet")
fillet.Base = (pad1, edges_at(pad1, [(-15.875, 24.606, 1.587), (-15.875, -24.606, 1.587)]))
fillet.Radius = Q("0.0625 in")

doc.recompute()
